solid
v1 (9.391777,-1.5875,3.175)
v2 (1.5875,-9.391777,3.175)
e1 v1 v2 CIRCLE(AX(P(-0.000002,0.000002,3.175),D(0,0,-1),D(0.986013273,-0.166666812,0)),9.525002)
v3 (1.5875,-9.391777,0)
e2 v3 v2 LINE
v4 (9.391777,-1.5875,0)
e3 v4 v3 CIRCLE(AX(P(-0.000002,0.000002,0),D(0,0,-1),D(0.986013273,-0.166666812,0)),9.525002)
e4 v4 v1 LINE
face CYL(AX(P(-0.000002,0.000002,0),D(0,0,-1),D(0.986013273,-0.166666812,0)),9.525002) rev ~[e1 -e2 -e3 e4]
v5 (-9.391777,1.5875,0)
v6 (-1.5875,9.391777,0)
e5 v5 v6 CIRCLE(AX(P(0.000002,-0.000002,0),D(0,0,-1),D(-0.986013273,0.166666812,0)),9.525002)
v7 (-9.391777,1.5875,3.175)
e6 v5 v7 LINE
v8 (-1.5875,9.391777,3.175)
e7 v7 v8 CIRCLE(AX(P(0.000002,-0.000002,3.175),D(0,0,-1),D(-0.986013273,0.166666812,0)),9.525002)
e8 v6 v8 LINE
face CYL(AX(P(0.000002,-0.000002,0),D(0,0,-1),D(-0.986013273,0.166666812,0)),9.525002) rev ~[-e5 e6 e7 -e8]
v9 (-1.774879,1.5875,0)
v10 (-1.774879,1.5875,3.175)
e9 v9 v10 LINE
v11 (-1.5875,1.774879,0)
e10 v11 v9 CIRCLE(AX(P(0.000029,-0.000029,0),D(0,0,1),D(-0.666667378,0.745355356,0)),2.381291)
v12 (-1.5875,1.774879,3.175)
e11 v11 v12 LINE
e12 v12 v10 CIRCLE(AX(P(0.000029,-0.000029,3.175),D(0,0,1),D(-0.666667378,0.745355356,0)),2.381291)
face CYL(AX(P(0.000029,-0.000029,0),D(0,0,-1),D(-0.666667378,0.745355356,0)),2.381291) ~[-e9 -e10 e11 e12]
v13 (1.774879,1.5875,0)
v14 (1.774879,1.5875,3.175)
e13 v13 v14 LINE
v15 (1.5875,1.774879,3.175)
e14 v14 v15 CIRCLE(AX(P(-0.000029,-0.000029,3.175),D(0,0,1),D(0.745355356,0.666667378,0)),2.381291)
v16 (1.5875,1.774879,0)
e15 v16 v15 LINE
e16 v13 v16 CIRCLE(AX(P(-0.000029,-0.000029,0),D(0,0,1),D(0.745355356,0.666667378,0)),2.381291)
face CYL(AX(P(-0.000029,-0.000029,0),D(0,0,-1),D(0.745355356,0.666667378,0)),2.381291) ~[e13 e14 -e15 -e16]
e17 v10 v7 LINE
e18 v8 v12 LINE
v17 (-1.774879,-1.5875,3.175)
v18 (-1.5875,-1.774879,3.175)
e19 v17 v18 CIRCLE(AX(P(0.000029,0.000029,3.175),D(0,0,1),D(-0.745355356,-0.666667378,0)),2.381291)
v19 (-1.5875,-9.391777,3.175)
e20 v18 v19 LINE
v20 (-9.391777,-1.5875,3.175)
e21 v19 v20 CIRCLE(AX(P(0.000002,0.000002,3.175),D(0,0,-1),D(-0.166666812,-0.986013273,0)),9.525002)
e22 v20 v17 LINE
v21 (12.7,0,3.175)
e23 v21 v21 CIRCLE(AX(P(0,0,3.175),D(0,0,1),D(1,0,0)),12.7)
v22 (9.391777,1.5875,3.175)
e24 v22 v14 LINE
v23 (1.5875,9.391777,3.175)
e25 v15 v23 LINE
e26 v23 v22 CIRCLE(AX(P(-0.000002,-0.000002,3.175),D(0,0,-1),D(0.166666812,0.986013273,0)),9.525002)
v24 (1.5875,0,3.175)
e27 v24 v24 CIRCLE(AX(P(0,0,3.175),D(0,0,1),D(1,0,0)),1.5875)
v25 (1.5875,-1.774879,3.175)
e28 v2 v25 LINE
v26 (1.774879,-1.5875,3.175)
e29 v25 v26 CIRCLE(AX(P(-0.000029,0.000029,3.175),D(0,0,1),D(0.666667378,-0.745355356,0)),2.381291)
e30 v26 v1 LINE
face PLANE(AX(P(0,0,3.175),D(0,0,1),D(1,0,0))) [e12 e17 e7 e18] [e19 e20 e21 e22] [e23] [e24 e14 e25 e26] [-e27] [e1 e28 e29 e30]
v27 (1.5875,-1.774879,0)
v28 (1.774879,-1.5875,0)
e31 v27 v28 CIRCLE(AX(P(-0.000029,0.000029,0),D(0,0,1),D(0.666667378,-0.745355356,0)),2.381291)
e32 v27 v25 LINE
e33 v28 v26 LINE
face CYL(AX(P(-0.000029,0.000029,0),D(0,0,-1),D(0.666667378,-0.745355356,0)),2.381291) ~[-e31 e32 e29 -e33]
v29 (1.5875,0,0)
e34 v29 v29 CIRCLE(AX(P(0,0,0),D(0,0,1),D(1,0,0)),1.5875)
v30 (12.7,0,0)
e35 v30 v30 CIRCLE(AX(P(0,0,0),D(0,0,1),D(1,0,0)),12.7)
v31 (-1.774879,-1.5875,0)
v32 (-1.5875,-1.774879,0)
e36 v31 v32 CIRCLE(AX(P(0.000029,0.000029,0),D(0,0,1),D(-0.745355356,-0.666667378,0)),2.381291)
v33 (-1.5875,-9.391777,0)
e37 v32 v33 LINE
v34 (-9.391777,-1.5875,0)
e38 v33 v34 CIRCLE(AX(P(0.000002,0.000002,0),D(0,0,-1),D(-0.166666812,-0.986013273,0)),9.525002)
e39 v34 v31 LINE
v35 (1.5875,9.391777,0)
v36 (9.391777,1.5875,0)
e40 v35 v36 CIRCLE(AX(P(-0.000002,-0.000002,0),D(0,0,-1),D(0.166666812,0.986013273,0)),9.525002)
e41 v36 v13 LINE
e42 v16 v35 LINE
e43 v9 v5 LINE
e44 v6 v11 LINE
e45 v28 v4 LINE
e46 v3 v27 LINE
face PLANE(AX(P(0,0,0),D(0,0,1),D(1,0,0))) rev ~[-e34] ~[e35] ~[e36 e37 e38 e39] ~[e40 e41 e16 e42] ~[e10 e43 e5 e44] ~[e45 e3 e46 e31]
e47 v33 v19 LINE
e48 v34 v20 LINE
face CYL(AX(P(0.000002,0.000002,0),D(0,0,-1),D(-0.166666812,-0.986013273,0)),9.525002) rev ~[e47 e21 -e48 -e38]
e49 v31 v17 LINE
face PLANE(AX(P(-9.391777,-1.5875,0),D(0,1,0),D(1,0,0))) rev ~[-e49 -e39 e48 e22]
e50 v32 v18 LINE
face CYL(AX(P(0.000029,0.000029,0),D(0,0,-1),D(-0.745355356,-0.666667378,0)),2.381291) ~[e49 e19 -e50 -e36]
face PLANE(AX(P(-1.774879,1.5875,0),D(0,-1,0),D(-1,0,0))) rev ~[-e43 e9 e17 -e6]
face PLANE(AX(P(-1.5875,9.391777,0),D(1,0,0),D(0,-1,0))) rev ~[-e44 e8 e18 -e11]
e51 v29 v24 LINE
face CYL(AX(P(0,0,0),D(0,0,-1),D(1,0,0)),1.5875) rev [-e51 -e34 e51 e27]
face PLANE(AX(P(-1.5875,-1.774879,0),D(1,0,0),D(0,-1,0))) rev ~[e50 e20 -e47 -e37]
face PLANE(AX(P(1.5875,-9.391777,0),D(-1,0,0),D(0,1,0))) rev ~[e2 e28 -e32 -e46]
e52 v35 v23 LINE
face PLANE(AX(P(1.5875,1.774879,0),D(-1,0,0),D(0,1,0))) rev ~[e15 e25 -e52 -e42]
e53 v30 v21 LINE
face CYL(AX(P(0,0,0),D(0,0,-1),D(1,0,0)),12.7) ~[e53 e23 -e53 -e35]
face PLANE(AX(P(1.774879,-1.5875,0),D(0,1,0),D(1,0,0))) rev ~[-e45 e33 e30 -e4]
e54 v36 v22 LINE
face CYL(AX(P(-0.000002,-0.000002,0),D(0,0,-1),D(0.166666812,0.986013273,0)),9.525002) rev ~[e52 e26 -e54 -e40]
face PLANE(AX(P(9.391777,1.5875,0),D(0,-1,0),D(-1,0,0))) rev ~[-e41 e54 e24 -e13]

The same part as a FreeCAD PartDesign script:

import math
import FreeCAD as App
import Part
import Sketcher

V = App.Vector
Q = App.Units.Quantity

doc = App.newDocument("Part")
params = doc.addObject("Spreadsheet::Sheet", "Params")
for row, (alias, value) in enumerate([
    ("sketch1_diameter", "1 in"),
    ("sketch1_diameter2", "0.125 in"),
    ("sketch1_radius", "0.3750001 in"),
    ("pad1_length", "0.125 in"),
], start=1):
    params.set(f"A{row}", alias)
    params.set(f"B{row}", "=" + value)
    params.setAlias(f"B{row}", alias)

body = doc.addObject("PartDesign::Body", "Body")

# Sketch on XY plane
sketch1 = body.newObject("Sketcher::SketchObject", "Sketch")
sketch1.AttachmentSupport = (doc.getObject("XY_Plane"), [""])
sketch1.MapMode = "FlatFace"
sketch1.addGeometry([
    Part.Circle(V(0, 0, 0), V(0, 0, 1), 12.7),  # 0
    Part.LineSegment(V(-1.5875, -1.774879, 0), V(-1.5875, -9.391777, 0)),  # 1
    Part.ArcOfCircle(Part.Circle(V(0.000002, 0.000002, 0), V(0, 0, 1), 9.525002), math.radians(-170.405923), math.radians(-99.594077)),  # 2
    Part.LineSegment(V(-9.391777, -1.5875, 0), V(-1.774879, -1.5875, 0)),  # 3
    Part.ArcOfCircle(Part.Circle(V(0.000029, 0.000029, 0), V(0, 0, 1), 2.381291), math.radians(-138.18963), math.radians(-131.81037)),  # 4
    Part.ArcOfCircle(Part.Circle(V(-0.000002, 0.000002, 0), V(0, 0, 1), 9.525002), math.radians(-80.405923), math.radians(-9.594077)),  # 5
    Part.LineSegment(V(1.5875, -9.391777, 0), V(1.5875, -1.774879, 0)),  # 6
    Part.ArcOfCircle(Part.Circle(V(-0.000029, 0.000029, 0), V(0, 0, 1), 2.381291), math.radians(-48.18963), math.radians(-41.81037)),  # 7
    Part.LineSegment(V(1.774879, -1.5875, 0), V(9.391777, -1.5875, 0)),  # 8
    Part.ArcOfCircle(Part.Circle(V(0.000002, -0.000002, 0), V(0, 0, 1), 9.525002), math.radians(99.594077), math.radians(170.405923)),  # 9
    Part.LineSegment(V(-1.5875, 9.391777, 0), V(-1.5875, 1.774879, 0)),  # 10
    Part.ArcOfCircle(Part.Circle(V(0.000029, -0.000029, 0), V(0, 0, 1), 2.381291), math.radians(131.81037), math.radians(138.18963)),  # 11
    Part.LineSegment(V(-1.774879, 1.5875, 0), V(-9.391777, 1.5875, 0)),  # 12
    Part.Circle(V(0, 0, 0), V(0, 0, 1), 1.5875),  # 13
    Part.LineSegment(V(9.391777, 1.5875, 0), V(1.774879, 1.5875, 0)),  # 14
    Part.ArcOfCircle(Part.Circle(V(-0.000029, -0.000029, 0), V(0, 0, 1), 2.381291), math.radians(41.81037), math.radians(48.18963)),  # 15
    Part.LineSegment(V(1.5875, 1.774879, 0), V(1.5875, 9.391777, 0)),  # 16
    Part.ArcOfCircle(Part.Circle(V(-0.000002, -0.000002, 0), V(0, 0, 1), 9.525002), math.radians(9.594077), math.radians(80.405923)),  # 17
], False)
sketch1.addConstraint([
    Sketcher.Constraint("Coincident", 1, 2, 2, 2),
    Sketcher.Constraint("Coincident", 2, 1, 3, 1),
    Sketcher.Constraint("Coincident", 3, 2, 4, 1),
    Sketcher.Constraint("Coincident", 4, 2, 1, 1),
    Sketcher.Constraint("Coincident", 5, 1, 6, 1),
    Sketcher.Constraint("Coincident", 6, 2, 7, 1),
    Sketcher.Constraint("Coincident", 7, 2, 8, 1),
    Sketcher.Constraint("Coincident", 8, 2, 5, 2),
    Sketcher.Constraint("Coincident", 9, 1, 10, 1),
    Sketcher.Constraint("Coincident", 10, 2, 11, 1),
    Sketcher.Constraint("Coincident", 11, 2, 12, 1),
    Sketcher.Constraint("Coincident", 12, 2, 9, 2),
    Sketcher.Constraint("Coincident", 14, 2, 15, 1),
    Sketcher.Constraint("Coincident", 15, 2, 16, 1),
    Sketcher.Constraint("Coincident", 16, 2, 17, 2),
    Sketcher.Constraint("Coincident", 17, 1, 14, 1),
    Sketcher.Constraint("Vertical", 1),
    Sketcher.Constraint("Horizontal", 3),
    Sketcher.Constraint("Vertical", 6),
    Sketcher.Constraint("Horizontal", 8),
    Sketcher.Constraint("Vertical", 10),
    Sketcher.Constraint("Horizontal", 12),
    Sketcher.Constraint("Horizontal", 14),
    Sketcher.Constraint("Vertical", 16),
    Sketcher.Constraint("Coincident", 0, 3, -1, 1),
    Sketcher.Constraint("Coincident", 2, 3, -1, 1),
    Sketcher.Constraint("Coincident", 5, 3, -1, 1),
    Sketcher.Constraint("Coincident", 9, 3, -1, 1),
    Sketcher.Constraint("Coincident", 13, 3, -1, 1),
    Sketcher.Constraint("Coincident", 17, 3, -1, 1),
    Sketcher.Constraint("Equal", 2, 5),
    Sketcher.Constraint("Equal", 4, 7),
    Sketcher.Constraint("Equal", 5, 9),
    Sketcher.Constraint("Equal", 7, 11),
    Sketcher.Constraint("Equal", 11, 15),
    Sketcher.Constraint("Equal", 9, 17),
    Sketcher.Constraint("Symmetric", 7, 3, 11, 3, -1, 1),
    Sketcher.Constraint("Symmetric", 4, 3, 15, 3, -1, 1),
    Sketcher.Constraint("Symmetric", 4, 3, 7, 3, -2),
    Sketcher.Constraint("Horizontal", 1, 2, 5, 1),
    Sketcher.Constraint("Horizontal", 3, 2, 7, 2),
    Sketcher.Constraint("Horizontal", 12, 2, 14, 2),
    Sketcher.Constraint("Horizontal", 10, 2, 15, 2),
    Sketcher.Constraint("Vertical", 4, 2, 9, 1),
    Sketcher.Constraint("Vertical", 3, 2, 11, 2),
    Sketcher.Constraint("Equal", 14, 1),
    Sketcher.Constraint("Diameter", 0, Q("1 in")),
    Sketcher.Constraint("Diameter", 13, Q("0.125 in")),
    Sketcher.Constraint("Radius", 2, Q("0.3750001 in")),
    Sketcher.Constraint("DistanceX", 1, 2, -1, 1, Q("0.0625 in")),
    Sketcher.Constraint("DistanceY", 2, 1, -1, 1, Q("0.0625 in")),
    Sketcher.Constraint("Radius", 4, 2.381291),
    Sketcher.Constraint("DistanceY", 5, 1, 4, 2, 7.616898),
])
sketch1.setExpression("Constraints[46]", "Params.sketch1_diameter")
sketch1.setExpression("Constraints[47]", "Params.sketch1_diameter2")
sketch1.setExpression("Constraints[48]", "Params.sketch1_radius")
pad1 = body.newObject("PartDesign::Pad", "Pad")
pad1.Profile = sketch1
pad1.setExpression("Length", "Params.pad1_length")

doc.recompute()
